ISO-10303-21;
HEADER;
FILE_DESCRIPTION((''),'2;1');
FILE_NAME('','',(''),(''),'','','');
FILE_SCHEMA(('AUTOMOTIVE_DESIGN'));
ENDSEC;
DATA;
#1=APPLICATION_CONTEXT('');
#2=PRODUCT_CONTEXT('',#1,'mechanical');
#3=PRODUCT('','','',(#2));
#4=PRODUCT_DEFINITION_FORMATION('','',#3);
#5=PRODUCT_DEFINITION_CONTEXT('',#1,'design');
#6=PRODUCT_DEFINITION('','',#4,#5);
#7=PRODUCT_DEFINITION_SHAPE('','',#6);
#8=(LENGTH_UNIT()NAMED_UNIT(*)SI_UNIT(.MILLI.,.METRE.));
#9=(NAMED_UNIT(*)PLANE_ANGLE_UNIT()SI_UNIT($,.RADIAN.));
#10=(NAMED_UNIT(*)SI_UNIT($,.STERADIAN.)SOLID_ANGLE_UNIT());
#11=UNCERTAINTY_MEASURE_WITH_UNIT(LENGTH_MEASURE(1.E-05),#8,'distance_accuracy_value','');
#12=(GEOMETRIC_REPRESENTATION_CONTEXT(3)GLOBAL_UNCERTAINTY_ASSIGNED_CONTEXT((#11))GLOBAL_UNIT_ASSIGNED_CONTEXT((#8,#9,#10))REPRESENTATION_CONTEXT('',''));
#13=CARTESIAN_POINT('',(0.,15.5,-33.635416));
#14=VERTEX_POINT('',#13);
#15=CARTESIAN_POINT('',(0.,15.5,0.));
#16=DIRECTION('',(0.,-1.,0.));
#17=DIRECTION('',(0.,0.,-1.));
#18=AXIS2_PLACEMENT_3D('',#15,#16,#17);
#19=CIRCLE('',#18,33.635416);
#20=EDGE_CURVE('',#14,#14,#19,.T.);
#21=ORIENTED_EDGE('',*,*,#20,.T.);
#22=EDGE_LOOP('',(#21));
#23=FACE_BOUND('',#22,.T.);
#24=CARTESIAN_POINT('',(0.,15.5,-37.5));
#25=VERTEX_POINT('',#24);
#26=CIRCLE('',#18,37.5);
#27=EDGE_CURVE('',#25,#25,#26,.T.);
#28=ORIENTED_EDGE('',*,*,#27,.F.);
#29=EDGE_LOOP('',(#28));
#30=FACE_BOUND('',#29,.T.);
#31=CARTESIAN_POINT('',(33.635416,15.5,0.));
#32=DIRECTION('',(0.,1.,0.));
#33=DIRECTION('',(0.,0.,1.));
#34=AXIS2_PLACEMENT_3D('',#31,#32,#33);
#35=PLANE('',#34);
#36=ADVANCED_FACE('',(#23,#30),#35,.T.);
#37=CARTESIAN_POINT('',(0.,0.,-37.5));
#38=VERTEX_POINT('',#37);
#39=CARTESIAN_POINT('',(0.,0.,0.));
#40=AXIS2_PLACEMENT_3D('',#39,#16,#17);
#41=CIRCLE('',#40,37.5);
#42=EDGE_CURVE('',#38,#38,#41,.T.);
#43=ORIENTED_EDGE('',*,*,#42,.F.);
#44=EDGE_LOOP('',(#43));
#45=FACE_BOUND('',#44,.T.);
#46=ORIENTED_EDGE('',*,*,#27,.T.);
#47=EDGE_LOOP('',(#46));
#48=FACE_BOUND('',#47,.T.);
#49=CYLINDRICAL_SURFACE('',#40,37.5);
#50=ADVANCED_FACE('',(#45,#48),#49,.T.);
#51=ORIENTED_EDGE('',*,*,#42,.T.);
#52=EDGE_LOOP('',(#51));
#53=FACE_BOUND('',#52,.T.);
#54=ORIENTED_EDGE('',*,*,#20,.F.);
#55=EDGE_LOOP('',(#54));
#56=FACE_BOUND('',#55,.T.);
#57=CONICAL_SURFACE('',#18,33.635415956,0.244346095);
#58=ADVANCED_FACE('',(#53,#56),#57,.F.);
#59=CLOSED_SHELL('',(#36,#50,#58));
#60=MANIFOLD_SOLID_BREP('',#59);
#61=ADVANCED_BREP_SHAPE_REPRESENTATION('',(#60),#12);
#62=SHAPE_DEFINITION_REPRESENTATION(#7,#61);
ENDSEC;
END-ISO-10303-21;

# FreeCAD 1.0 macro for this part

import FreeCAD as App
import Part
import Sketcher
from FreeCAD import Vector
Q = App.Units.Quantity

doc = App.newDocument("Part")
body = doc.addObject("PartDesign::Body", "Body")

sketch1 = doc.addObject("Sketcher::SketchObject", "Sketch")
body.addObject(sketch1)
sketch1.AttachmentSupport = (doc.XY_Plane, [""])
sketch1.MapMode = "FlatFace"
sketch1.addGeometry(Part.LineSegment(Vector(33.6, 15.5, 0), Vector(37.5, 0, 0)), False)
sketch1.addGeometry(Part.LineSegment(Vector(37.5, 0, 0), Vector(37.5, 15.5, 0)), False)
sketch1.addGeometry(Part.LineSegment(Vector(37.5, 15.5, 0), Vector(33.6, 15.5, 0)), False)
sketch1.addConstraint(Sketcher.Constraint("Coincident", 0, 2, 1, 1))
sketch1.addConstraint(Sketcher.Constraint("Coincident", 1, 2, 2, 1))
sketch1.addConstraint(Sketcher.Constraint("Coincident", 2, 2, 0, 1))
sketch1.addConstraint(Sketcher.Constraint("Vertical", 1))
sketch1.addConstraint(Sketcher.Constraint("Horizontal", 2))
sketch1.addConstraint(Sketcher.Constraint("PointOnObject", 0, 2, -1))
sketch1.addConstraint(Sketcher.Constraint("Angle", 0, Q("-76 deg")))
sketch1.addConstraint(Sketcher.Constraint("DistanceY", 1, 1, 1, 2, Q("15.5 mm")))
sketch1.addConstraint(Sketcher.Constraint("DistanceX", -1, 1, 0, 2, Q("37.5 mm")))
revolution = doc.addObject("PartDesign::Revolution", "Revolution")
body.addObject(revolution)
revolution.Profile = sketch1
revolution.ReferenceAxis = (sketch1, ["V_Axis"])
revolution.Angle = 360

doc.recompute()
